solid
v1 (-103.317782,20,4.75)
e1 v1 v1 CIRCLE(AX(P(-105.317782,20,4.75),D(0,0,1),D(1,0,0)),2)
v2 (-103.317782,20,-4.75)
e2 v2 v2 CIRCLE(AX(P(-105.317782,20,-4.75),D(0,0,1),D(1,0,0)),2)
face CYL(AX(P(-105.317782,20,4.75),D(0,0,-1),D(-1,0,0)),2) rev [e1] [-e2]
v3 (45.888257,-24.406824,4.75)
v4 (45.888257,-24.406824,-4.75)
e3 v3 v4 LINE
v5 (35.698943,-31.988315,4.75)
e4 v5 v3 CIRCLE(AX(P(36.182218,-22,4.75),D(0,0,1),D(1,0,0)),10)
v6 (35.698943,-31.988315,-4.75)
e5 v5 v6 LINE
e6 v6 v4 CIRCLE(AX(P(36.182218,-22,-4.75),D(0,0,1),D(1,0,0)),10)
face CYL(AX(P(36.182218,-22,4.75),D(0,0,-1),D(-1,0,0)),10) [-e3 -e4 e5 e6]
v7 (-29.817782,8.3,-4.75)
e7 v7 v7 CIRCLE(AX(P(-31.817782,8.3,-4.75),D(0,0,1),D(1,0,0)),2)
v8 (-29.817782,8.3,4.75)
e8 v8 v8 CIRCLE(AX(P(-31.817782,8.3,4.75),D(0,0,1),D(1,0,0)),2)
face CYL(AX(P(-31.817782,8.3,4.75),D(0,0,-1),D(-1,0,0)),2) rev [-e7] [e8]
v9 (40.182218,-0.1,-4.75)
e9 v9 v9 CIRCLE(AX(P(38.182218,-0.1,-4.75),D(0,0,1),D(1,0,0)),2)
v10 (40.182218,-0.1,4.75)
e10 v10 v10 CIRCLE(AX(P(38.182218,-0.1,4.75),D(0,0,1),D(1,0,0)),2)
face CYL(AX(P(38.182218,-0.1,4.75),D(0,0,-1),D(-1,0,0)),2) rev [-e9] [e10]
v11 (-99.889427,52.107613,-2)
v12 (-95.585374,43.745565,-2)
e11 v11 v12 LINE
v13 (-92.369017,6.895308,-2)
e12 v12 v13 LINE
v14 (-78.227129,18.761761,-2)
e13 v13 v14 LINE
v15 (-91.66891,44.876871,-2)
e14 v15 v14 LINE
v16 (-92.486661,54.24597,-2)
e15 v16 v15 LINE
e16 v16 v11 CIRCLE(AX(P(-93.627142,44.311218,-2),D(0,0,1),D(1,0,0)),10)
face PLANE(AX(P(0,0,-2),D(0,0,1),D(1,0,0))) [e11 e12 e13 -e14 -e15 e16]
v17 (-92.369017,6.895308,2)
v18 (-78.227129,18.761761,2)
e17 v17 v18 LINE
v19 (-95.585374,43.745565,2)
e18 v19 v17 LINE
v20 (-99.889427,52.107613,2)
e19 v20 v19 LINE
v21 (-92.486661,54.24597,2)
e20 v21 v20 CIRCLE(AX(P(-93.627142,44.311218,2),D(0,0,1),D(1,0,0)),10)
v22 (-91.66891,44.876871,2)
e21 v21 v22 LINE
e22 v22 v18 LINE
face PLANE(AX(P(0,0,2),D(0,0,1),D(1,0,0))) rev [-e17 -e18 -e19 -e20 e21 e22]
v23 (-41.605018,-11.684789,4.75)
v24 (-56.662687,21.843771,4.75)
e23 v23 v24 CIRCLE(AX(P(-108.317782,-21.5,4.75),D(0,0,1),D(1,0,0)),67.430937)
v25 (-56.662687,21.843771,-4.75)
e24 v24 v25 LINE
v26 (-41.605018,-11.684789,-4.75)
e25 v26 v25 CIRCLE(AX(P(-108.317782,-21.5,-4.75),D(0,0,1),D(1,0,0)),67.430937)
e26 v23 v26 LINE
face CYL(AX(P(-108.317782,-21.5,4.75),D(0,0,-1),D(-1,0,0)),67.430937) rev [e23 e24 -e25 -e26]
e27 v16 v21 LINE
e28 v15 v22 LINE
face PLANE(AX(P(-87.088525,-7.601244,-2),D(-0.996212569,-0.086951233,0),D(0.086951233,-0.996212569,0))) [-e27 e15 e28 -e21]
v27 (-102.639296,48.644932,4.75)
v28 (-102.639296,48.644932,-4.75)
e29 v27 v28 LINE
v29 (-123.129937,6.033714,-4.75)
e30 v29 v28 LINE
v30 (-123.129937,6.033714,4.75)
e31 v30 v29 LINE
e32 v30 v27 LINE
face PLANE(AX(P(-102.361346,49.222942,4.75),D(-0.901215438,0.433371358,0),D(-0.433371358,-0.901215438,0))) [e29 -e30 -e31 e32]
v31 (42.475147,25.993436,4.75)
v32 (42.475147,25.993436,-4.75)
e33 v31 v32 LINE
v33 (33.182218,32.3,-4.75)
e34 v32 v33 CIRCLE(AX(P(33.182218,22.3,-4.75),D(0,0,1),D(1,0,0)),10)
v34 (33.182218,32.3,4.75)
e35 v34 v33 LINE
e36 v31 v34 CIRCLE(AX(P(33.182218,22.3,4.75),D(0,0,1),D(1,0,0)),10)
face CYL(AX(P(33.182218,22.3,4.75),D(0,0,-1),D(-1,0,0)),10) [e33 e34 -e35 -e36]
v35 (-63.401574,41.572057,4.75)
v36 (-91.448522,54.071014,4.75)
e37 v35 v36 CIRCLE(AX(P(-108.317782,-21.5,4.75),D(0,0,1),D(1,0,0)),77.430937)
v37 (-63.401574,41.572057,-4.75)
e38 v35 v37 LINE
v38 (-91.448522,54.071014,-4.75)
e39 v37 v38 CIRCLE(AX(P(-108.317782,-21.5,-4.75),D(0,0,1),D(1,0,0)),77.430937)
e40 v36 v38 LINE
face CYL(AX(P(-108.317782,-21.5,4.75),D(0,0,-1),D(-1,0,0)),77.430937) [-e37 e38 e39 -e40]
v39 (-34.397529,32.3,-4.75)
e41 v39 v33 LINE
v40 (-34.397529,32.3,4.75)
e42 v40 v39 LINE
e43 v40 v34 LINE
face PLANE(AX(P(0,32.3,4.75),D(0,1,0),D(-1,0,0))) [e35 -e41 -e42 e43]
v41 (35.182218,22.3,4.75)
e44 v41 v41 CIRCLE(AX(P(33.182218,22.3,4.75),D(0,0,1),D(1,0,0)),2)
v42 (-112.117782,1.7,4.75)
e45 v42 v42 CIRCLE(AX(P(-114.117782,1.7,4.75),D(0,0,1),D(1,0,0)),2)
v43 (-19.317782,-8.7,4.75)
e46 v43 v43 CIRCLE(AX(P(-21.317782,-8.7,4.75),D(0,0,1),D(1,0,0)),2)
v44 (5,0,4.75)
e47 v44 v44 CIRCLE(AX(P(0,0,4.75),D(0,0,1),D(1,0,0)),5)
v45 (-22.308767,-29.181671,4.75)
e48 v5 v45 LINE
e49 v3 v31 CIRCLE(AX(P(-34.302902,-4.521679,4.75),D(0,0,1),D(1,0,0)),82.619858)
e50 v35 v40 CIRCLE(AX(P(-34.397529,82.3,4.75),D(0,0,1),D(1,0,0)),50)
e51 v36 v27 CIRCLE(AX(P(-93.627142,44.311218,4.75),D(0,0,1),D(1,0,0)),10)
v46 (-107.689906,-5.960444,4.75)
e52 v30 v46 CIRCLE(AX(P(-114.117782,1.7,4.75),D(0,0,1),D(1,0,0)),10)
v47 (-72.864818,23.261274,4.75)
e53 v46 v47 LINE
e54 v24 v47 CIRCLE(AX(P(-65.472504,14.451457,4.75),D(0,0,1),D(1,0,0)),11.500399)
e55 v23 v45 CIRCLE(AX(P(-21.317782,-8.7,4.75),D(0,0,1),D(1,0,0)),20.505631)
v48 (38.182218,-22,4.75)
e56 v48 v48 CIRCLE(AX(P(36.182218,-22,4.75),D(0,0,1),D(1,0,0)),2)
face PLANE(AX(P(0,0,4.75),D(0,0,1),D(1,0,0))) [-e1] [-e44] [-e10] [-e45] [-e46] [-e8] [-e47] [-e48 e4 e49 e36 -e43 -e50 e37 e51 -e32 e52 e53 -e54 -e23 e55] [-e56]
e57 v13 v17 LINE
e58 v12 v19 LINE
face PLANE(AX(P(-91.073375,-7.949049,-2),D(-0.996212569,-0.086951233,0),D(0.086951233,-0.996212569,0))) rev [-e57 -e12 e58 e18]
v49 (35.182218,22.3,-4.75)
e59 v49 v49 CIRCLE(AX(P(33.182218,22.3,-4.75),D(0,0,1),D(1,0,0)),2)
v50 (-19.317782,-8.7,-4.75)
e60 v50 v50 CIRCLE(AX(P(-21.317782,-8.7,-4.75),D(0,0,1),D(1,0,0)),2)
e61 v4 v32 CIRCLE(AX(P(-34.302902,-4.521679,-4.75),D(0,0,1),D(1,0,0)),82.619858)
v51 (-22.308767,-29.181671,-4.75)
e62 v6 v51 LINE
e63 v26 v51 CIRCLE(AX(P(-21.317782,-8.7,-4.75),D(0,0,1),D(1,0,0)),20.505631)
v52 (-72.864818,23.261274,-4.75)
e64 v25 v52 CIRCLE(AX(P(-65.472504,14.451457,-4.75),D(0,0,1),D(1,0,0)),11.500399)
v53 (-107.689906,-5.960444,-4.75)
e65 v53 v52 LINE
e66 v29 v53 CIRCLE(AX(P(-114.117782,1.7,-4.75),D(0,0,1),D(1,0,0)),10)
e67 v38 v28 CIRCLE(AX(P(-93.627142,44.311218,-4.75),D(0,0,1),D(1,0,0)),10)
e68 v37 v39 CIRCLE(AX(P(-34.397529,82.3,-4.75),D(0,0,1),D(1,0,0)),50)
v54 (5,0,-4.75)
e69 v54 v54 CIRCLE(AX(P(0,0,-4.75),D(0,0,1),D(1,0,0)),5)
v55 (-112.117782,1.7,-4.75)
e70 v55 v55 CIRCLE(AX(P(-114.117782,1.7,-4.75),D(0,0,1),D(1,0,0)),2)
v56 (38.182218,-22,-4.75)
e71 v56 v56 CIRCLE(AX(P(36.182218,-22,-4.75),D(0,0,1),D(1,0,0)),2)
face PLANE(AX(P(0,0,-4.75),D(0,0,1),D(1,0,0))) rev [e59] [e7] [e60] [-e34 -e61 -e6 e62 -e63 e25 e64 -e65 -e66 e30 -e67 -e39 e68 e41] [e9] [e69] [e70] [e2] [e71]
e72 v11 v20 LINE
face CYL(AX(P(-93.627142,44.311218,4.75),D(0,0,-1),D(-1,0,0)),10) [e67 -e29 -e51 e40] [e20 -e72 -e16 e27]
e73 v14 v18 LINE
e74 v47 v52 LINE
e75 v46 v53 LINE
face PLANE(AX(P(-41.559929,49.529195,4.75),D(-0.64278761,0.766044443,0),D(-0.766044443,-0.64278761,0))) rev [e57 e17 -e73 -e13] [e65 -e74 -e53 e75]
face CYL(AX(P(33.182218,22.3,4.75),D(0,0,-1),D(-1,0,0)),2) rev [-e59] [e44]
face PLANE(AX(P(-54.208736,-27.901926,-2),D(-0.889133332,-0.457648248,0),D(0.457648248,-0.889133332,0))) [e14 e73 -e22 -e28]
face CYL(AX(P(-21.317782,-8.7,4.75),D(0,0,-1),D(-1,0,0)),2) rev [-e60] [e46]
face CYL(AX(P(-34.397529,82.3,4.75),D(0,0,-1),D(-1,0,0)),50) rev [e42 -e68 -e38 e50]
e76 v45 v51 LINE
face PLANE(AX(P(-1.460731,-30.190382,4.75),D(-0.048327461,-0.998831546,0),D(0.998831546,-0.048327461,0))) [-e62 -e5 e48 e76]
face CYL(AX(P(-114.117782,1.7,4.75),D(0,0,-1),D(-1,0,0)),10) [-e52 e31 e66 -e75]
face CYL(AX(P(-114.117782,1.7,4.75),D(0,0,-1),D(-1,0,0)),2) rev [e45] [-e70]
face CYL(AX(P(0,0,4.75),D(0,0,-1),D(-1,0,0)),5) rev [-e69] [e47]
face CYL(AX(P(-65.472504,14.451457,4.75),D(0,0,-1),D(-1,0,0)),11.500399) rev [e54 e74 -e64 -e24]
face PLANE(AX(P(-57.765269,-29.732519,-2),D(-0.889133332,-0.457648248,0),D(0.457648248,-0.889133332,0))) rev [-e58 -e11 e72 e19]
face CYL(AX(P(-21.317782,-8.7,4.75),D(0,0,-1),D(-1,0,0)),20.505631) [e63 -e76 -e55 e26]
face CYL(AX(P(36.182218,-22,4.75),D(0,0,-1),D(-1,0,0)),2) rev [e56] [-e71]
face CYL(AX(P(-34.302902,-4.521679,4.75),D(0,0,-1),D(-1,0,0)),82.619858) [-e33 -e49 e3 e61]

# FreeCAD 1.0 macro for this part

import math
import FreeCAD as App
import Part
import Sketcher

V = App.Vector
Q = App.Units.Quantity

doc = App.newDocument("Part")
body = doc.addObject("PartDesign::Body", "Body")

sketch1 = body.newObject("Sketcher::SketchObject", "Sketch")
sketch1.AttachmentSupport = (doc.getObject("XY_Plane"), [""])
sketch1.MapMode = "FlatFace"
sketch1.addGeometry([
    Part.LineSegment(V(-22.308767, -29.181671, 0), V(35.698943, -31.988315, 0)),
    Part.ArcOfCircle(Part.Circle(V(36.182218, -22, 0), V(0, 0, 1), 10), math.radians(-92.770039), math.radians(-13.926819)),
    Part.ArcOfCircle(Part.Circle(V(-34.302902, -4.521679, 0), V(0, 0, 1), 82.619858), math.radians(-13.926819), math.radians(21.67514)),
    Part.ArcOfCircle(Part.Circle(V(33.182218, 22.3, 0), V(0, 0, 1), 10), math.radians(21.67514), math.radians(90)),
    Part.LineSegment(V(33.182218, 32.3, 0), V(-34.397529, 32.3, 0)),
    Part.ArcOfCircle(Part.Circle(V(-34.397529, 82.3, 0), V(0, 0, 1), 50), math.radians(-125.456233), math.radians(-90)),
    Part.ArcOfCircle(Part.Circle(V(-108.317782, -21.5, 0), V(0, 0, 1), 77.430937), math.radians(54.543767), math.radians(77.41651)),
    Part.ArcOfCircle(Part.Circle(V(-93.627142, 44.311218, 0), V(0, 0, 1), 10), math.radians(77.41651), math.radians(154.318294)),
    Part.LineSegment(V(-102.639296, 48.644932, 0), V(-123.129937, 6.033714, 0)),
    Part.ArcOfCircle(Part.Circle(V(-114.117782, 1.7, 0), V(0, 0, 1), 10), math.radians(154.318294), math.radians(310)),
    Part.LineSegment(V(-107.689906, -5.960444, 0), V(-72.864818, 23.261274, 0)),
    Part.ArcOfCircle(Part.Circle(V(-65.472504, 14.451457, 0), V(0, 0, 1), 11.500399), math.radians(40), math.radians(130)),
    Part.ArcOfCircle(Part.Circle(V(-108.317782, -21.5, 0), V(0, 0, 1), 67.430938), math.radians(8.369678), math.radians(40)),
    Part.ArcOfCircle(Part.Circle(V(-21.317782, -8.7, 0), V(0, 0, 1), 20.505631), math.radians(-171.630322), math.radians(-92.770039)),
    Part.Circle(V(36.182218, -22, 0), V(0, 0, 1), 2),
    Part.Circle(V(-21.317782, -8.7, 0), V(0, 0, 1), 2),
    Part.Circle(V(0, 0, 0), V(0, 0, 1), 5),
    Part.Circle(V(38.182218, -0.1, 0), V(0, 0, 1), 2),
    Part.Circle(V(-114.117782, 1.7, 0), V(0, 0, 1), 2),
    Part.Circle(V(-105.317782, 20, 0), V(0, 0, 1), 2),
    Part.Circle(V(-31.817782, 8.3, 0), V(0, 0, 1), 2),
    Part.Circle(V(33.182218, 22.3, 0), V(0, 0, 1), 2),
], False)
sketch1.addConstraint([
    Sketcher.Constraint("Tangent", 0, 2, 1, 1),
    Sketcher.Constraint("Tangent", 1, 2, 2, 1),
    Sketcher.Constraint("Tangent", 2, 2, 3, 1),
    Sketcher.Constraint("Tangent", 3, 2, 4, 1),
    Sketcher.Constraint("Tangent", 4, 2, 5, 2),
    Sketcher.Constraint("Tangent", 5, 1, 6, 1),
    Sketcher.Constraint("Tangent", 6, 2, 7, 1),
    Sketcher.Constraint("Tangent", 7, 2, 8, 1),
    Sketcher.Constraint("Tangent", 8, 2, 9, 1),
    Sketcher.Constraint("Tangent", 9, 2, 10, 1),
    Sketcher.Constraint("Tangent", 10, 2, 11, 2),
    Sketcher.Constraint("Tangent", 11, 1, 12, 2),
    Sketcher.Constraint("Tangent", 12, 1, 13, 1),
    Sketcher.Constraint("Tangent", 13, 2, 0, 1),
    Sketcher.Constraint("Horizontal", 4),
    Sketcher.Constraint("Coincident", 16, 3, -1, 1),
    Sketcher.Constraint("Coincident", 12, 3, 6, 3),
    Sketcher.Constraint("Coincident", 14, 3, 1, 3),
    Sketcher.Constraint("Coincident", 15, 3, 13, 3),
    Sketcher.Constraint("Coincident", 18, 3, 9, 3),
    Sketcher.Constraint("Coincident", 21, 3, 3, 3),
    Sketcher.Constraint("Equal", 1, 3),
    Sketcher.Constraint("Equal", 3, 7),
    Sketcher.Constraint("Equal", 7, 9),
    Sketcher.Constraint("Equal", 14, 15),
    Sketcher.Constraint("Equal", 15, 17),
    Sketcher.Constraint("Equal", 17, 18),
    Sketcher.Constraint("Equal", 18, 19),
    Sketcher.Constraint("Equal", 19, 20),
    Sketcher.Constraint("Equal", 20, 21),
    Sketcher.Constraint("Diameter", 14, Q("4 mm")),
    Sketcher.Constraint("Diameter", 16, Q("10 mm")),
    Sketcher.Constraint("Radius", 1, Q("10 mm")),
    Sketcher.Constraint("Radius", 5, Q("50 mm")),
    Sketcher.Constraint("Angle", 10, Q("40 deg")),
    Sketcher.Constraint("DistanceY", 1, 3, -1, 1, Q("22 mm")),
    Sketcher.Constraint("DistanceY", -1, 1, 19, 3, Q("20 mm")),
    Sketcher.Constraint("DistanceX", 3, 3, 1, 3, Q("3 mm")),
    Sketcher.Constraint("DistanceY", 13, 3, 3, 3, Q("31 mm")),
    Sketcher.Constraint("DistanceX", 6, 3, 13, 3, Q("87 mm")),
    Sketcher.Constraint("DistanceX", 1, 3, 17, 3, Q("2 mm")),
    Sketcher.Constraint("DistanceX", 6, 3, 19, 3, Q("3 mm")),
    Sketcher.Constraint("DistanceY", 15, 3, 20, 3, Q("17 mm")),
    Sketcher.Constraint("DistanceY", -1, 1, 3, 3, Q("22.3 mm")),
    Sketcher.Constraint("DistanceY", 6, 3, -1, 1, Q("21.5 mm")),
    Sketcher.Constraint("DistanceY", -1, 1, 9, 3, Q("1.7 mm")),
    Sketcher.Constraint("DistanceY", 17, 3, -1, 1, Q("0.1 mm")),
    Sketcher.Constraint("Radius", 11, Q("11.500399 mm")),
    Sketcher.Constraint("DistanceX", 6, 3, 1, 3, Q("144.5 mm")),
    Sketcher.Constraint("DistanceX", 9, 3, 6, 3, Q("5.8 mm")),
    Sketcher.Constraint("DistanceX", 20, 3, 15, 3, Q("10.5 mm")),
    Sketcher.Constraint("Radius", 2, Q("82.619858 mm")),
    Sketcher.Constraint("Radius", 13, Q("20.505631 mm")),
    Sketcher.Constraint("Radius", 6, Q("77.430937 mm")),
    Sketcher.Constraint("DistanceX", 5, 3, -1, 1, Q("34.397529 mm")),
    Sketcher.Constraint("DistanceX", 7, 3, -1, 1, Q("93.627142 mm")),
])
pad1 = body.newObject("PartDesign::Pad", "Pad")
pad1.Profile = sketch1
pad1.Length = 9.5
pad1.Midplane = True

sketch2 = body.newObject("Sketcher::SketchObject", "Sketch001")
sketch2.AttachmentSupport = (doc.getObject("XY_Plane"), [""])
sketch2.MapMode = "FlatFace"
sketch2.addGeometry([
    Part.LineSegment(V(-78.227129, 18.761761, 0), V(-91.66891, 44.876871, 0)),
    Part.LineSegment(V(-91.66891, 44.876871, 0), V(-92.486661, 54.24597, 0)),
    Part.ArcOfCircle(Part.Circle(V(-93.627142, 44.311218, 0), V(0, 0, 1), 10), math.radians(83.451279), math.radians(128.772416)),
    Part.LineSegment(V(-99.889427, 52.107613, 0), V(-95.585374, 43.745565, 0)),
    Part.LineSegment(V(-95.585374, 43.745565, 0), V(-92.369017, 6.895308, 0)),
    Part.LineSegment(V(-92.369017, 6.895308, 0), V(-78.227129, 18.761761, 0)),
], False)
sketch2.addConstraint([
    Sketcher.Constraint("Coincident", 0, 2, 1, 1),
    Sketcher.Constraint("Coincident", 1, 2, 2, 1),
    Sketcher.Constraint("Coincident", 2, 2, 3, 1),
    Sketcher.Constraint("Coincident", 3, 2, 4, 1),
    Sketcher.Constraint("Coincident", 4, 2, 5, 1),
    Sketcher.Constraint("Coincident", 5, 2, 0, 1),
    Sketcher.Constraint("Parallel", 0, 3),
    Sketcher.Constraint("Parallel", 1, 4),
    Sketcher.Constraint("Equal", 1, 3),
    Sketcher.Constraint("Radius", 2, Q("10 mm")),
    Sketcher.Constraint("Angle", 5, Q("40 deg")),
    Sketcher.Constraint("DistanceY", 0, 2, 1, 2, Q("9.369099 mm")),
    Sketcher.Constraint("Distance", 1, Q("9.404719 mm")),
    Sketcher.Constraint("DistanceX", 2, 3, -1, 1, Q("93.627142 mm")),
    Sketcher.Constraint("DistanceY", -1, 1, 2, 3, Q("44.311218 mm")),
    Sketcher.Constraint("DistanceX", 0, 2, -1, 1, Q("91.66891 mm")),
    Sketcher.Constraint("DistanceX", 5, 2, -1, 1, Q("78.227129 mm")),
    Sketcher.Constraint("DistanceY", -1, 1, 5, 2, Q("18.761761 mm")),
    Sketcher.Constraint("DistanceY", 0, 2, 2, 2, Q("7.230742 mm")),
])
pocket1 = body.newObject("PartDesign::Pocket", "Pocket")
pocket1.Profile = sketch2
pocket1.Length = 4
pocket1.Midplane = True

doc.recompute()
